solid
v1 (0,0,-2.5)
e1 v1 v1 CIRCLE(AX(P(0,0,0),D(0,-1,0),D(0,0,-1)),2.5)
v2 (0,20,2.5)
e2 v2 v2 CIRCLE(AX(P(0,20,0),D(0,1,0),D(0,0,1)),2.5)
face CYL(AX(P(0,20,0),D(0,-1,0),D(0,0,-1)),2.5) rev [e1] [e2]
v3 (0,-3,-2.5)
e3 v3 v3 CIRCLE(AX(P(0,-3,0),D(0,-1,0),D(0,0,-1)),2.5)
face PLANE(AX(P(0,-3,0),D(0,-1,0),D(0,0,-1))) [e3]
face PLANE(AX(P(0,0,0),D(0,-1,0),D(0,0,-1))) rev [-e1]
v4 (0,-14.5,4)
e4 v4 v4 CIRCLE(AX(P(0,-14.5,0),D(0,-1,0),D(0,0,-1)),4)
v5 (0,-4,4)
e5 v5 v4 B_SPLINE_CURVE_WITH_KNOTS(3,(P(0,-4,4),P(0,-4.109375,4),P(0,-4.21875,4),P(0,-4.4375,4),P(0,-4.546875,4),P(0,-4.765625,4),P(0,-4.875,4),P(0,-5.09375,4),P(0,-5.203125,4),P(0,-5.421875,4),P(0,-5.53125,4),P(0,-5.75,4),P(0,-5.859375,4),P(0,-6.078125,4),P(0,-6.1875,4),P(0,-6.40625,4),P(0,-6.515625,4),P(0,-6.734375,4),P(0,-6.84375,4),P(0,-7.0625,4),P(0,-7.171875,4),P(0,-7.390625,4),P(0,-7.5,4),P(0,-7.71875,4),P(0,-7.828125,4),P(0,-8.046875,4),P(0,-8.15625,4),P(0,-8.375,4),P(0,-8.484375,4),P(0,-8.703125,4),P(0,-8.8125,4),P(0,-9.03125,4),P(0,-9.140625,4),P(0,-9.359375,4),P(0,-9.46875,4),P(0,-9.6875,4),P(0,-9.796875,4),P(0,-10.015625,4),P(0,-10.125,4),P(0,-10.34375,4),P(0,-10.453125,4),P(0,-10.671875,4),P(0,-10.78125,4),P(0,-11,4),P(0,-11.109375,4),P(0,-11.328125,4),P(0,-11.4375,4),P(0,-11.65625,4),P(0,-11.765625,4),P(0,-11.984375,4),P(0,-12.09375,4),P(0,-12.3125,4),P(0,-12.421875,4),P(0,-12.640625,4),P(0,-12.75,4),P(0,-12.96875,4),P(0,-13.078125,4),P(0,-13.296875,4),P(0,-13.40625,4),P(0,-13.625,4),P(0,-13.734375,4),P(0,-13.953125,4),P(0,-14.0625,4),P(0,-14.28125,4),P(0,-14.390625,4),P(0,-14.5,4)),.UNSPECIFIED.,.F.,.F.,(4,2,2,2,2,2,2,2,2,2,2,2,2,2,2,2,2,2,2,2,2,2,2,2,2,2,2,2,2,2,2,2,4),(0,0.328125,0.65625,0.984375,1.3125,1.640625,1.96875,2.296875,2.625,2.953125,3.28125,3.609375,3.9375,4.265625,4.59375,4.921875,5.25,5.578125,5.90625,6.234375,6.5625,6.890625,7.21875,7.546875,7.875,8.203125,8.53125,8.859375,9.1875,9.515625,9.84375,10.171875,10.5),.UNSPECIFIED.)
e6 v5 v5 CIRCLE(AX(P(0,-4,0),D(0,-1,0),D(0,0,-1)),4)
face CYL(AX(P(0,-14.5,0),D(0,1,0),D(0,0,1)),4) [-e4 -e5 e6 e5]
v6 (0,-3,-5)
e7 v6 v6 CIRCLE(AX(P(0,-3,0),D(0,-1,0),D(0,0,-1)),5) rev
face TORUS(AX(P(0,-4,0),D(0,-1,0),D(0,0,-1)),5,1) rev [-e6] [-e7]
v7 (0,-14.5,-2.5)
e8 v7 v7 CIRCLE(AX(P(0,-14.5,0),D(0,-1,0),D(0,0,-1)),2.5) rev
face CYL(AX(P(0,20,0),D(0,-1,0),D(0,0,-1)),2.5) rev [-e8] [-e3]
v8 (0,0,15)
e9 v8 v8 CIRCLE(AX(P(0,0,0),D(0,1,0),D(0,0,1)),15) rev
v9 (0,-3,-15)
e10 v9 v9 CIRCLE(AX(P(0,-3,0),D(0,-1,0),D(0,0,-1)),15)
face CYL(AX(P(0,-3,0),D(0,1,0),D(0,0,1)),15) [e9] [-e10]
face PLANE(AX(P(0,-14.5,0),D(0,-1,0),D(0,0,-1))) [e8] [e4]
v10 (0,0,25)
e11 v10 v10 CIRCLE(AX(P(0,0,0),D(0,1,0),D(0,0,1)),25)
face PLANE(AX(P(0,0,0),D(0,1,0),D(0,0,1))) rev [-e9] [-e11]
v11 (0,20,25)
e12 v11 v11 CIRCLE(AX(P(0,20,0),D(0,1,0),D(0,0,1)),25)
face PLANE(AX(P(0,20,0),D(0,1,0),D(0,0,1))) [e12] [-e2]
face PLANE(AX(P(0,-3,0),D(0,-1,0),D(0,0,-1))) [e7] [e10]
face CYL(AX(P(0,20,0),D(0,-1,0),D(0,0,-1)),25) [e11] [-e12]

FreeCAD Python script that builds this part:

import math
import FreeCAD as App
import Part
import Sketcher


def edges_at(feature, points):
    """Names of the edges that pass closest to the given points."""
    edges = feature.Shape.Edges
    near = lambda p: min(range(len(edges)), key=lambda i: edges[i].distToShape(Part.Vertex(*p))[0])
    return sorted({f"Edge{near(p) + 1}" for p in points})

doc = App.newDocument("Part")
body = doc.addObject("PartDesign::Body", "Body")

# Sketch on XZ plane
sketch1 = body.newObject("Sketcher::SketchObject", "Sketch")
sketch1.AttachmentSupport = (doc.getObject("XZ_Plane"), [""])
sketch1.MapMode = "FlatFace"
sketch1.addGeometry([
    Part.Circle(App.Vector(0, 0, 0), App.Vector(0, 0, 1), 25),
    Part.Circle(App.Vector(0, 0, 0), App.Vector(0, 0, 1), 2.5),
], False)
sketch1.addConstraint([
    Sketcher.Constraint("Coincident", 0, 3, -1, 1),
    Sketcher.Constraint("Coincident", 1, 3, -1, 1),
    Sketcher.Constraint("Diameter", 0, 50.0),
    Sketcher.Constraint("Diameter", 1, 5.0),
])
pad1 = body.newObject("PartDesign::Pad", "Pad")
pad1.Profile = sketch1
pad1.Length = 20
pad1.Reversed = True

# Sketch on XZ plane
sketch2 = body.newObject("Sketcher::SketchObject", "Sketch001")
sketch2.AttachmentSupport = (doc.getObject("XZ_Plane"), [""])
sketch2.MapMode = "FlatFace"
sketch2.AttachmentOffset = App.Placement(App.Vector(0, 0, 14.5), App.Rotation())
sketch2.addGeometry([
    Part.ArcOfCircle(Part.Circle(App.Vector(0, 0, 0), App.Vector(0, 0, 1), 4), math.radians(120), math.radians(240)),
    Part.ArcOfCircle(Part.Circle(App.Vector(0, 0, 0), App.Vector(0, 0, 1), 4), math.radians(-120), math.radians(120)),
    Part.Circle(App.Vector(0, 0, 0), App.Vector(0, 0, 1), 2.5),
], False)
sketch2.addConstraint([
    Sketcher.Constraint("Tangent", 0, 1, 1, 2),
    Sketcher.Constraint("Coincident", 1, 1, 0, 2),
    Sketcher.Constraint("Coincident", 0, 3, -1, 1),
    Sketcher.Constraint("Coincident", 2, 3, -1, 1),
    Sketcher.Constraint("Vertical", 0, 1, 1, 1),
    Sketcher.Constraint("Diameter", 2, 5.0),
    Sketcher.Constraint("Radius", 0, 4.0),
    Sketcher.Constraint("DistanceX", 0, 1, -1, 1, 2.0),
])
pad2 = body.newObject("PartDesign::Pad", "Pad001")
pad2.Profile = sketch2
pad2.Length = 14.5
pad2.Reversed = True

# Sketch on XZ plane
sketch3 = body.newObject("Sketcher::SketchObject", "Sketch002")
sketch3.AttachmentSupport = (doc.getObject("XZ_Plane"), [""])
sketch3.MapMode = "FlatFace"
sketch3.addGeometry(Part.Circle(App.Vector(0, 0, 0), App.Vector(0, 0, 1), 15), False)
sketch3.addConstraint([
    Sketcher.Constraint("Coincident", 0, 3, -1, 1),
    Sketcher.Constraint("Diameter", 0, 30.0),
])
pad3 = body.newObject("PartDesign::Pad", "Pad002")
pad3.Profile = sketch3
pad3.Length = 3
doc.recompute()

fillet = body.newObject("PartDesign::Fillet", "Fillet")
fillet.Base = (pad3, edges_at(pad3, [(4, -3, 0)]))
fillet.Radius = 1

doc.recompute()
